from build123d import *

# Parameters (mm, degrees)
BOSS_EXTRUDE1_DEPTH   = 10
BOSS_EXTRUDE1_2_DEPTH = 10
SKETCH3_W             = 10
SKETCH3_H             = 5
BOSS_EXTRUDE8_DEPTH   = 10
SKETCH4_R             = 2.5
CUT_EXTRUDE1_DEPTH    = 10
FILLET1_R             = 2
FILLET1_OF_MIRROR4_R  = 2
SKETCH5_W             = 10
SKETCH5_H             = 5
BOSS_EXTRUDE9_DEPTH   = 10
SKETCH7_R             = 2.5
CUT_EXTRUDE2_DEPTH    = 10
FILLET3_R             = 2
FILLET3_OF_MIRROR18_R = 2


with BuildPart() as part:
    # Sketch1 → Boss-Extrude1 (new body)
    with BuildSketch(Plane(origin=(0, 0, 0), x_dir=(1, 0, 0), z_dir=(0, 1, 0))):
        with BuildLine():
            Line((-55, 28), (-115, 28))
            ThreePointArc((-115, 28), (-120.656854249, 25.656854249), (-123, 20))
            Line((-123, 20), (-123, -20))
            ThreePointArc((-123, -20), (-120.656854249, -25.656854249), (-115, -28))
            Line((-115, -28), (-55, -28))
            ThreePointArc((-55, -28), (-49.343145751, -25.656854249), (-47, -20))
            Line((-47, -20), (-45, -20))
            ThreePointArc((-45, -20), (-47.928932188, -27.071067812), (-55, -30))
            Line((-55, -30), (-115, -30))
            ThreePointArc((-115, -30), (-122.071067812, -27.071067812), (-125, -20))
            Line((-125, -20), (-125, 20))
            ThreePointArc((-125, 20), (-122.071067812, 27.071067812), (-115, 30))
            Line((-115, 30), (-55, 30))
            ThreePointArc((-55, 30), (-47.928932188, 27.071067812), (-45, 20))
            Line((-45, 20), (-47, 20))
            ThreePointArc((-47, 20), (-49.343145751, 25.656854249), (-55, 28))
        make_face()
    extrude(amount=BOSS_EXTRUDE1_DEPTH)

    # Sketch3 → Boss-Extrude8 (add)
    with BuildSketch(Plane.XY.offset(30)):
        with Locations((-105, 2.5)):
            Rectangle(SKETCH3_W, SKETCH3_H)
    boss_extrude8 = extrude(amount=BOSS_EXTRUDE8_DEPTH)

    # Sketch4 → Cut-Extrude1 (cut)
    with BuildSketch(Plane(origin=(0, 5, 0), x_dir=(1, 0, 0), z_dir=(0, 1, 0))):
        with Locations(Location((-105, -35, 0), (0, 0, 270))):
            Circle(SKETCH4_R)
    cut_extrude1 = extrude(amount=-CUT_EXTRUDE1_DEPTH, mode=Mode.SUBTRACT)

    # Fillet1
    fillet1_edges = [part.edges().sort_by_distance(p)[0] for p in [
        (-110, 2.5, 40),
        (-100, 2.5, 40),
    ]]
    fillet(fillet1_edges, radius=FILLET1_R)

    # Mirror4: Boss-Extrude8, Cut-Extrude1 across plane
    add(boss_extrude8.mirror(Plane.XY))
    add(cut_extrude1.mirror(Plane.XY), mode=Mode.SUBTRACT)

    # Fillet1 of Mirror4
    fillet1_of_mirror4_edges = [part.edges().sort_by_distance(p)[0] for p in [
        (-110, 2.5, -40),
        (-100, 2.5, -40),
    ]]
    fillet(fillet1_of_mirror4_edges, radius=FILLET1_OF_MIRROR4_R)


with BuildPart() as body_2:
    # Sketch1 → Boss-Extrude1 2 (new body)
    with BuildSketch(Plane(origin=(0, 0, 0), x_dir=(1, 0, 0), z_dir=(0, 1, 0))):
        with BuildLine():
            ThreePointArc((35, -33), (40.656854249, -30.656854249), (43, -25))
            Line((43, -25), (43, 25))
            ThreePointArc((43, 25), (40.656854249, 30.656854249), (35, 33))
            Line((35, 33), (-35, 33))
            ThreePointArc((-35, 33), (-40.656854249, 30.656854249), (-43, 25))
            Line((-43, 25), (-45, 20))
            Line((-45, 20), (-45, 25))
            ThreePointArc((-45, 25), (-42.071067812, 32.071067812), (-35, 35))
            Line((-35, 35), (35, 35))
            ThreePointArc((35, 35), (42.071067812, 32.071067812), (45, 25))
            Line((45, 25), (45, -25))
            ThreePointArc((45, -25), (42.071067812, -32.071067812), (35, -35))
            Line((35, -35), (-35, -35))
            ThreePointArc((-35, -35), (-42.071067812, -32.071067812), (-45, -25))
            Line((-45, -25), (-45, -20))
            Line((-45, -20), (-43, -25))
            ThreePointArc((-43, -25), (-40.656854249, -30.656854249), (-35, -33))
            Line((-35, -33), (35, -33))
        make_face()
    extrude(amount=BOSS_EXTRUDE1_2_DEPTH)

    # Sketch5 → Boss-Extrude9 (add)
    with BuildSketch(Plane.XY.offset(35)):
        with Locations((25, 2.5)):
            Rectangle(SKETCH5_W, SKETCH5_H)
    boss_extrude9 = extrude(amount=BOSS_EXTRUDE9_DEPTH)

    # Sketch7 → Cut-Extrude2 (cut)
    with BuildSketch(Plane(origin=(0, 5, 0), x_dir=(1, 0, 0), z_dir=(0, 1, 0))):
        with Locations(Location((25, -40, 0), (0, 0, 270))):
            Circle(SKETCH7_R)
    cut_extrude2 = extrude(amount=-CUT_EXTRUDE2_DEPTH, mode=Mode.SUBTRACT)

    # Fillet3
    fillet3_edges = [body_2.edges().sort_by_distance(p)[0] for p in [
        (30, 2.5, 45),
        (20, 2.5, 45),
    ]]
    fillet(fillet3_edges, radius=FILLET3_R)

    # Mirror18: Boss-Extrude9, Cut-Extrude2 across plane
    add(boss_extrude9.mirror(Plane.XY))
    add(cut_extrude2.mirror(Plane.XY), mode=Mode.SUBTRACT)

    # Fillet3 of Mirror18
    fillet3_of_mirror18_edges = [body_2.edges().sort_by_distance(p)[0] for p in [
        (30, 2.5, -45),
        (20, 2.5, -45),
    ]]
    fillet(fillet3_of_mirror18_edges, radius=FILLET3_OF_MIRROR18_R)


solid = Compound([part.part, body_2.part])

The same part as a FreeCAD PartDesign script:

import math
import FreeCAD as App
import Part
import Sketcher

V = App.Vector
Q = App.Units.Quantity


def edges_at(feature, points):
    """Names of the edges that pass closest to the given points."""
    edges = feature.Shape.Edges
    near = lambda p: min(range(len(edges)), key=lambda i: edges[i].distToShape(Part.Vertex(*p))[0])
    return sorted({f"Edge{near(p) + 1}" for p in points})


def add_polygon(sketch, points):
    """Adds a closed chain of lines whose ends are joined by coincident constraints."""
    first, n = sketch.GeometryCount, len(points)
    for a, b in zip(points, points[1:] + points[:1]):
        sketch.addGeometry(Part.LineSegment(App.Vector(*a, 0), App.Vector(*b, 0)), False)
    for i in range(n):
        sketch.addConstraint(Sketcher.Constraint("Coincident", first + i, 2, first + (i + 1) % n, 1))

doc = App.newDocument("Part")
params = doc.addObject("Spreadsheet::Sheet", "Params")
for row, (alias, value) in enumerate([
    ("sketch1_radius", "8 mm"),
    ("sketch1_radius2", "10 mm"),
    ("sketch1_width", "60 mm"),
    ("sketch1_height", "40 mm"),
    ("pad1_length", "10 mm"),
    ("sketch2_width", "10 mm"),
    ("sketch2_height", "5 mm"),
    ("pad2_length", "10 mm"),
    ("sketch3_diameter", "5 mm"),
    ("pocket1_length", "10 mm"),
    ("fillet_radius", "2 mm"),
    ("fillet2_radius", "2 mm"),
    ("sketch4_radius", "8 mm"),
    ("sketch4_radius2", "10 mm"),
    ("sketch4_width", "70 mm"),
    ("sketch4_height", "5 mm"),
    ("sketch4_height2", "50 mm"),
    ("pad3_length", "10 mm"),
    ("sketch5_width", "10 mm"),
    ("sketch5_height", "5 mm"),
    ("pad4_length", "10 mm"),
    ("sketch6_diameter", "5 mm"),
    ("pocket2_length", "10 mm"),
    ("fillet3_radius", "2 mm"),
    ("fillet4_radius", "2 mm"),
], start=1):
    params.set(f"A{row}", alias)
    params.set(f"B{row}", "=" + value)
    params.setAlias(f"B{row}", alias)

body = doc.addObject("PartDesign::Body", "Body")

# Sketch on XZ plane
sketch1 = body.newObject("Sketcher::SketchObject", "Sketch")
sketch1.AttachmentSupport = (doc.getObject("XZ_Plane"), [""])
sketch1.MapMode = "FlatFace"
sketch1.addGeometry([
    Part.LineSegment(V(-115, -28, 0), V(-55, -28, 0)),  # 0
    Part.ArcOfCircle(Part.Circle(V(-55, -20, 0), V(0, 0, 1), 8), math.radians(-90), math.radians(0)),  # 1
    Part.LineSegment(V(-47, -20, 0), V(-45, -20, 0)),  # 2
    Part.ArcOfCircle(Part.Circle(V(-55, -20, 0), V(0, 0, 1), 10), math.radians(-90), math.radians(0)),  # 3
    Part.LineSegment(V(-55, -30, 0), V(-115, -30, 0)),  # 4
    Part.ArcOfCircle(Part.Circle(V(-115, -20, 0), V(0, 0, 1), 10), math.radians(180), math.radians(270)),  # 5
    Part.LineSegment(V(-125, -20, 0), V(-125, 20, 0)),  # 6
    Part.ArcOfCircle(Part.Circle(V(-115, 20, 0), V(0, 0, 1), 10), math.radians(90), math.radians(180)),  # 7
    Part.LineSegment(V(-115, 30, 0), V(-55, 30, 0)),  # 8
    Part.ArcOfCircle(Part.Circle(V(-55, 20, 0), V(0, 0, 1), 10), math.radians(0), math.radians(90)),  # 9
    Part.LineSegment(V(-45, 20, 0), V(-47, 20, 0)),  # 10
    Part.ArcOfCircle(Part.Circle(V(-55, 20, 0), V(0, 0, 1), 8), math.radians(0), math.radians(90)),  # 11
    Part.LineSegment(V(-55, 28, 0), V(-115, 28, 0)),  # 12
    Part.ArcOfCircle(Part.Circle(V(-115, 20, 0), V(0, 0, 1), 8), math.radians(90), math.radians(180)),  # 13
    Part.LineSegment(V(-123, 20, 0), V(-123, -20, 0)),  # 14
    Part.ArcOfCircle(Part.Circle(V(-115, -20, 0), V(0, 0, 1), 8), math.radians(-180), math.radians(-90)),  # 15
], False)
sketch1.addConstraint([
    Sketcher.Constraint("Tangent", 0, 2, 1, 1),
    Sketcher.Constraint("Coincident", 1, 2, 2, 1),
    Sketcher.Constraint("Coincident", 2, 2, 3, 2),
    Sketcher.Constraint("Tangent", 3, 1, 4, 1),
    Sketcher.Constraint("Tangent", 4, 2, 5, 2),
    Sketcher.Constraint("Tangent", 5, 1, 6, 1),
    Sketcher.Constraint("Tangent", 6, 2, 7, 2),
    Sketcher.Constraint("Tangent", 7, 1, 8, 1),
    Sketcher.Constraint("Tangent", 8, 2, 9, 2),
    Sketcher.Constraint("Coincident", 9, 1, 10, 1),
    Sketcher.Constraint("Coincident", 10, 2, 11, 1),
    Sketcher.Constraint("Tangent", 11, 2, 12, 1),
    Sketcher.Constraint("Tangent", 12, 2, 13, 1),
    Sketcher.Constraint("Tangent", 13, 2, 14, 1),
    Sketcher.Constraint("Tangent", 14, 2, 15, 1),
    Sketcher.Constraint("Tangent", 15, 2, 0, 1),
    Sketcher.Constraint("Horizontal", 0),
    Sketcher.Constraint("Horizontal", 2),
    Sketcher.Constraint("Horizontal", 4),
    Sketcher.Constraint("Vertical", 6),
    Sketcher.Constraint("Horizontal", 8),
    Sketcher.Constraint("Horizontal", 10),
    Sketcher.Constraint("Horizontal", 12),
    Sketcher.Constraint("Vertical", 14),
    Sketcher.Constraint("Coincident", 3, 3, 1, 3),
    Sketcher.Constraint("Coincident", 11, 3, 9, 3),
    Sketcher.Constraint("Coincident", 13, 3, 7, 3),
    Sketcher.Constraint("Coincident", 15, 3, 5, 3),
    Sketcher.Constraint("Equal", 3, 5),
    Sketcher.Constraint("Equal", 5, 7),
    Sketcher.Constraint("Equal", 7, 9),
    Sketcher.Constraint("Symmetric", 1, 3, 9, 3, -1),
    Sketcher.Constraint("Horizontal", 15, 3, 1, 2),
    Sketcher.Constraint("Horizontal", 6, 2, 9, 1),
    Sketcher.Constraint("Radius", 1, Q("8 mm")),
    Sketcher.Constraint("Radius", 3, Q("10 mm")),
    Sketcher.Constraint("DistanceX", 0, 1, 0, 2, Q("60 mm")),
    Sketcher.Constraint("DistanceY", 6, 1, 6, 2, Q("40 mm")),
    Sketcher.Constraint("DistanceX", 1, 3, -1, 1, Q("55 mm")),
])
sketch1.setExpression("Constraints[34]", "Params.sketch1_radius")
sketch1.setExpression("Constraints[35]", "Params.sketch1_radius2")
sketch1.setExpression("Constraints[36]", "Params.sketch1_width")
sketch1.setExpression("Constraints[37]", "Params.sketch1_height")
pad1 = body.newObject("PartDesign::Pad", "Pad")
pad1.Profile = sketch1
pad1.setExpression("Length", "Params.pad1_length")
pad1.Reversed = True

# Sketch on XY plane
sketch2 = body.newObject("Sketcher::SketchObject", "Sketch001")
sketch2.AttachmentSupport = (doc.getObject("XY_Plane"), [""])
sketch2.MapMode = "FlatFace"
sketch2.AttachmentOffset = App.Placement(V(0, 0, 30), App.Rotation())
add_polygon(sketch2, [(-110, 5), (-110, 0), (-100, 0), (-100, 5)])  # lines 0-3
sketch2.addConstraint([
    Sketcher.Constraint("Vertical", 0),
    Sketcher.Constraint("Horizontal", 1),
    Sketcher.Constraint("Vertical", 2),
    Sketcher.Constraint("Horizontal", 3),
    Sketcher.Constraint("PointOnObject", 0, 2, -1),
    Sketcher.Constraint("DistanceX", 1, 1, 1, 2, Q("10 mm")),
    Sketcher.Constraint("DistanceY", 0, 2, 0, 1, Q("5 mm")),
    Sketcher.Constraint("DistanceX", 0, 2, -1, 1, Q("110 mm")),
])
sketch2.setExpression("Constraints[9]", "Params.sketch2_width")
sketch2.setExpression("Constraints[10]", "Params.sketch2_height")
pad2 = body.newObject("PartDesign::Pad", "Pad001")
pad2.Profile = sketch2
pad2.setExpression("Length", "Params.pad2_length")

# Sketch on XZ plane
sketch3 = body.newObject("Sketcher::SketchObject", "Sketch002")
sketch3.AttachmentSupport = (doc.getObject("XZ_Plane"), [""])
sketch3.MapMode = "FlatFace"
sketch3.AttachmentOffset = App.Placement(V(0, 0, -5), App.Rotation())
sketch3.addGeometry(Part.Circle(V(-105, 35, 0), V(0, 0, 1), 2.5), False)
sketch3.addConstraint([
    Sketcher.Constraint("Diameter", 0, Q("5 mm")),
    Sketcher.Constraint("DistanceX", 0, 3, -1, 1, Q("105 mm")),
    Sketcher.Constraint("DistanceY", -1, 1, 0, 3, Q("35 mm")),
])
sketch3.setExpression("Constraints[0]", "Params.sketch3_diameter")
pocket1 = body.newObject("PartDesign::Pocket", "Pocket")
pocket1.Profile = sketch3
pocket1.setExpression("Length", "Params.pocket1_length")
pocket1.Reversed = True
doc.recompute()

fillet = body.newObject("PartDesign::Fillet", "Fillet")
fillet.Base = (pocket1, edges_at(pocket1, [(-110, 2.5, 40), (-100, 2.5, 40)]))
fillet.setExpression("Radius", "Params.fillet_radius")
doc.recompute()

mirrored = body.newObject("PartDesign::Mirrored", "Mirrored")
mirrored.Originals = [pad2, pocket1]
mirrored.MirrorPlane = (doc.getObject("XY_Plane"), [""])
body.Tip = mirrored
doc.recompute()

fillet2 = body.newObject("PartDesign::Fillet", "Fillet001")
fillet2.Base = (mirrored, edges_at(mirrored, [(-110, 2.5, -40), (-100, 2.5, -40)]))
fillet2.setExpression("Radius", "Params.fillet2_radius")
body2 = doc.addObject("PartDesign::Body", "Body001")

# Sketch on XZ plane
sketch4 = body2.newObject("Sketcher::SketchObject", "Sketch003")
sketch4.AttachmentSupport = (doc.getObject("XZ_Plane001"), [""])
sketch4.MapMode = "FlatFace"
sketch4.addGeometry([
    Part.ArcOfCircle(Part.Circle(V(35, 25, 0), V(0, 0, 1), 8), math.radians(0), math.radians(90)),  # 0
    Part.LineSegment(V(35, 33, 0), V(-35, 33, 0)),  # 1
    Part.ArcOfCircle(Part.Circle(V(-35, 25, 0), V(0, 0, 1), 8), math.radians(90), math.radians(180)),  # 2
    Part.LineSegment(V(-43, 25, 0), V(-45, 20, 0)),  # 3
    Part.LineSegment(V(-45, 20, 0), V(-45, 25, 0)),  # 4
    Part.ArcOfCircle(Part.Circle(V(-35, 25, 0), V(0, 0, 1), 10), math.radians(90), math.radians(180)),  # 5
    Part.LineSegment(V(-35, 35, 0), V(35, 35, 0)),  # 6
    Part.ArcOfCircle(Part.Circle(V(35, 25, 0), V(0, 0, 1), 10), math.radians(0), math.radians(90)),  # 7
    Part.LineSegment(V(45, 25, 0), V(45, -25, 0)),  # 8
    Part.ArcOfCircle(Part.Circle(V(35, -25, 0), V(0, 0, 1), 10), math.radians(-90), math.radians(0)),  # 9
    Part.LineSegment(V(35, -35, 0), V(-35, -35, 0)),  # 10
    Part.ArcOfCircle(Part.Circle(V(-35, -25, 0), V(0, 0, 1), 10), math.radians(180), math.radians(270)),  # 11
    Part.LineSegment(V(-45, -25, 0), V(-45, -20, 0)),  # 12
    Part.LineSegment(V(-45, -20, 0), V(-43, -25, 0)),  # 13
    Part.ArcOfCircle(Part.Circle(V(-35, -25, 0), V(0, 0, 1), 8), math.radians(-180), math.radians(-90)),  # 14
    Part.LineSegment(V(-35, -33, 0), V(35, -33, 0)),  # 15
    Part.ArcOfCircle(Part.Circle(V(35, -25, 0), V(0, 0, 1), 8), math.radians(-90), math.radians(0)),  # 16
    Part.LineSegment(V(43, -25, 0), V(43, 25, 0)),  # 17
], False)
sketch4.addConstraint([
    Sketcher.Constraint("Tangent", 0, 2, 1, 1),
    Sketcher.Constraint("Tangent", 1, 2, 2, 1),
    Sketcher.Constraint("Coincident", 2, 2, 3, 1),
    Sketcher.Constraint("Coincident", 3, 2, 4, 1),
    Sketcher.Constraint("Tangent", 4, 2, 5, 2),
    Sketcher.Constraint("Tangent", 5, 1, 6, 1),
    Sketcher.Constraint("Tangent", 6, 2, 7, 2),
    Sketcher.Constraint("Tangent", 7, 1, 8, 1),
    Sketcher.Constraint("Tangent", 8, 2, 9, 2),
    Sketcher.Constraint("Tangent", 9, 1, 10, 1),
    Sketcher.Constraint("Tangent", 10, 2, 11, 2),
    Sketcher.Constraint("Tangent", 11, 1, 12, 1),
    Sketcher.Constraint("Coincident", 12, 2, 13, 1),
    Sketcher.Constraint("Coincident", 13, 2, 14, 1),
    Sketcher.Constraint("Tangent", 14, 2, 15, 1),
    Sketcher.Constraint("Tangent", 15, 2, 16, 1),
    Sketcher.Constraint("Tangent", 16, 2, 17, 1),
    Sketcher.Constraint("Tangent", 17, 2, 0, 1),
    Sketcher.Constraint("Horizontal", 1),
    Sketcher.Constraint("Vertical", 4),
    Sketcher.Constraint("Horizontal", 6),
    Sketcher.Constraint("Vertical", 8),
    Sketcher.Constraint("Horizontal", 10),
    Sketcher.Constraint("Vertical", 12),
    Sketcher.Constraint("Horizontal", 15),
    Sketcher.Constraint("Vertical", 17),
    Sketcher.Constraint("Coincident", 5, 3, 2, 3),
    Sketcher.Constraint("Coincident", 7, 3, 0, 3),
    Sketcher.Constraint("Coincident", 14, 3, 11, 3),
    Sketcher.Constraint("Coincident", 16, 3, 9, 3),
    Sketcher.Constraint("Equal", 0, 2),
    Sketcher.Constraint("Equal", 7, 9),
    Sketcher.Constraint("Equal", 9, 11),
    Sketcher.Constraint("Symmetric", 2, 3, 9, 3, -1, 1),
    Sketcher.Constraint("Symmetric", 13, 2, 17, 2, -1, 1),
    Sketcher.Constraint("Horizontal", 7, 3, 2, 2),
    Sketcher.Constraint("Equal", 4, 12),
    Sketcher.Constraint("Radius", 0, Q("8 mm")),
    Sketcher.Constraint("Radius", 5, Q("10 mm")),
    Sketcher.Constraint("DistanceX", 1, 2, 1, 1, Q("70 mm")),
    Sketcher.Constraint("DistanceY", 4, 1, 4, 2, Q("5 mm")),
    Sketcher.Constraint("DistanceY", 8, 2, 8, 1, Q("50 mm")),
])
sketch4.setExpression("Constraints[37]", "Params.sketch4_radius")
sketch4.setExpression("Constraints[38]", "Params.sketch4_radius2")
sketch4.setExpression("Constraints[39]", "Params.sketch4_width")
sketch4.setExpression("Constraints[40]", "Params.sketch4_height")
sketch4.setExpression("Constraints[41]", "Params.sketch4_height2")
pad3 = body2.newObject("PartDesign::Pad", "Pad002")
pad3.Profile = sketch4
pad3.setExpression("Length", "Params.pad3_length")
pad3.Reversed = True

# Sketch on XY plane
sketch5 = body2.newObject("Sketcher::SketchObject", "Sketch004")
sketch5.AttachmentSupport = (doc.getObject("XY_Plane001"), [""])
sketch5.MapMode = "FlatFace"
sketch5.AttachmentOffset = App.Placement(V(0, 0, 35), App.Rotation())
add_polygon(sketch5, [(20, 5), (20, 0), (30, 0), (30, 5)])  # lines 0-3
sketch5.addConstraint([
    Sketcher.Constraint("Vertical", 0),
    Sketcher.Constraint("Horizontal", 1),
    Sketcher.Constraint("Vertical", 2),
    Sketcher.Constraint("Horizontal", 3),
    Sketcher.Constraint("PointOnObject", 0, 2, -1),
    Sketcher.Constraint("DistanceX", 1, 1, 1, 2, Q("10 mm")),
    Sketcher.Constraint("DistanceY", 0, 2, 0, 1, Q("5 mm")),
    Sketcher.Constraint("DistanceX", -1, 1, 0, 2, Q("20 mm")),
])
sketch5.setExpression("Constraints[9]", "Params.sketch5_width")
sketch5.setExpression("Constraints[10]", "Params.sketch5_height")
pad4 = body2.newObject("PartDesign::Pad", "Pad003")
pad4.Profile = sketch5
pad4.setExpression("Length", "Params.pad4_length")

# Sketch on XZ plane
sketch6 = body2.newObject("Sketcher::SketchObject", "Sketch005")
sketch6.AttachmentSupport = (doc.getObject("XZ_Plane001"), [""])
sketch6.MapMode = "FlatFace"
sketch6.AttachmentOffset = App.Placement(V(0, 0, -5), App.Rotation())
sketch6.addGeometry(Part.Circle(V(25, 40, 0), V(0, 0, 1), 2.5), False)
sketch6.addConstraint([
    Sketcher.Constraint("Diameter", 0, Q("5 mm")),
    Sketcher.Constraint("DistanceX", -1, 1, 0, 3, Q("25 mm")),
    Sketcher.Constraint("DistanceY", -1, 1, 0, 3, Q("40 mm")),
])
sketch6.setExpression("Constraints[0]", "Params.sketch6_diameter")
pocket2 = body2.newObject("PartDesign::Pocket", "Pocket001")
pocket2.Profile = sketch6
pocket2.setExpression("Length", "Params.pocket2_length")
pocket2.Reversed = True
doc.recompute()

fillet3 = body2.newObject("PartDesign::Fillet", "Fillet002")
fillet3.Base = (pocket2, edges_at(pocket2, [(30, 2.5, 45), (20, 2.5, 45)]))
fillet3.setExpression("Radius", "Params.fillet3_radius")
doc.recompute()

mirrored2 = body2.newObject("PartDesign::Mirrored", "Mirrored001")
mirrored2.Originals = [pad4, pocket2]
mirrored2.MirrorPlane = (doc.getObject("XY_Plane001"), [""])
body2.Tip = mirrored2
doc.recompute()

fillet4 = body2.newObject("PartDesign::Fillet", "Fillet003")
fillet4.Base = (mirrored2, edges_at(mirrored2, [(30, 2.5, -45), (20, 2.5, -45)]))
fillet4.setExpression("Radius", "Params.fillet4_radius")

doc.recompute()
